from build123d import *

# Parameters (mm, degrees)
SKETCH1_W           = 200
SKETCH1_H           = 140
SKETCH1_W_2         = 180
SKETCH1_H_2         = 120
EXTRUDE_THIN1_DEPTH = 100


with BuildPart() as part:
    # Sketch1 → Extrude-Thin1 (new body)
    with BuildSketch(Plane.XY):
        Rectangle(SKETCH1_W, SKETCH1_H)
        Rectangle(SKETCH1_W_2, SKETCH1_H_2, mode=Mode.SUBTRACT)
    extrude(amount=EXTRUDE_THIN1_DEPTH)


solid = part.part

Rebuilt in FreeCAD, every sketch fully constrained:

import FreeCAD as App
import Part
import Sketcher

V = App.Vector

doc = App.newDocument("Part")
body = doc.addObject("PartDesign::Body", "Body")

# Sketch on XY plane
sketch1 = doc.addObject("Sketcher::SketchObject", "Sketch")
body.addObject(sketch1)
sketch1.AttachmentSupport = (doc.XY_Plane, [""])
sketch1.MapMode = "FlatFace"
sketch1.addGeometry([
    Part.LineSegment(V(-100, 70, 0), V(-100, -70, 0)),  # 0
    Part.LineSegment(V(-100, -70, 0), V(100, -70, 0)),  # 1
    Part.LineSegment(V(100, -70, 0), V(100, 70, 0)),  # 2
    Part.LineSegment(V(100, 70, 0), V(-100, 70, 0)),  # 3
    Part.LineSegment(V(90, -60, 0), V(-90, -60, 0)),  # 4
    Part.LineSegment(V(-90, -60, 0), V(-90, 60, 0)),  # 5
    Part.LineSegment(V(-90, 60, 0), V(90, 60, 0)),  # 6
    Part.LineSegment(V(90, 60, 0), V(90, -60, 0)),  # 7
], False)
sketch1.addConstraint([
    Sketcher.Constraint("Coincident", 0, 2, 1, 1),
    Sketcher.Constraint("Coincident", 1, 2, 2, 1),
    Sketcher.Constraint("Coincident", 2, 2, 3, 1),
    Sketcher.Constraint("Coincident", 3, 2, 0, 1),
    Sketcher.Constraint("Coincident", 4, 2, 5, 1),
    Sketcher.Constraint("Coincident", 5, 2, 6, 1),
    Sketcher.Constraint("Coincident", 6, 2, 7, 1),
    Sketcher.Constraint("Coincident", 7, 2, 4, 1),
    Sketcher.Constraint("Vertical", 0),
    Sketcher.Constraint("Horizontal", 1),
    Sketcher.Constraint("Vertical", 2),
    Sketcher.Constraint("Horizontal", 3),
    Sketcher.Constraint("Horizontal", 4),
    Sketcher.Constraint("Vertical", 5),
    Sketcher.Constraint("Horizontal", 6),
    Sketcher.Constraint("Vertical", 7),
    Sketcher.Constraint("Symmetric", 0, 2, 2, 2, -1, 1),
    Sketcher.Constraint("Symmetric", 4, 2, 6, 2, -1, 1),
    Sketcher.Constraint("DistanceX", 1, 1, 1, 2, 200.0),
    Sketcher.Constraint("DistanceX", 4, 2, 4, 1, 180.0),
    Sketcher.Constraint("DistanceY", 0, 2, 0, 1, 140.0),
    Sketcher.Constraint("DistanceY", 5, 1, 5, 2, 120.0),
])
pad1 = doc.addObject("PartDesign::Pad", "Pad")
body.addObject(pad1)
pad1.Profile = sketch1
pad1.Length = 100

doc.recompute()
